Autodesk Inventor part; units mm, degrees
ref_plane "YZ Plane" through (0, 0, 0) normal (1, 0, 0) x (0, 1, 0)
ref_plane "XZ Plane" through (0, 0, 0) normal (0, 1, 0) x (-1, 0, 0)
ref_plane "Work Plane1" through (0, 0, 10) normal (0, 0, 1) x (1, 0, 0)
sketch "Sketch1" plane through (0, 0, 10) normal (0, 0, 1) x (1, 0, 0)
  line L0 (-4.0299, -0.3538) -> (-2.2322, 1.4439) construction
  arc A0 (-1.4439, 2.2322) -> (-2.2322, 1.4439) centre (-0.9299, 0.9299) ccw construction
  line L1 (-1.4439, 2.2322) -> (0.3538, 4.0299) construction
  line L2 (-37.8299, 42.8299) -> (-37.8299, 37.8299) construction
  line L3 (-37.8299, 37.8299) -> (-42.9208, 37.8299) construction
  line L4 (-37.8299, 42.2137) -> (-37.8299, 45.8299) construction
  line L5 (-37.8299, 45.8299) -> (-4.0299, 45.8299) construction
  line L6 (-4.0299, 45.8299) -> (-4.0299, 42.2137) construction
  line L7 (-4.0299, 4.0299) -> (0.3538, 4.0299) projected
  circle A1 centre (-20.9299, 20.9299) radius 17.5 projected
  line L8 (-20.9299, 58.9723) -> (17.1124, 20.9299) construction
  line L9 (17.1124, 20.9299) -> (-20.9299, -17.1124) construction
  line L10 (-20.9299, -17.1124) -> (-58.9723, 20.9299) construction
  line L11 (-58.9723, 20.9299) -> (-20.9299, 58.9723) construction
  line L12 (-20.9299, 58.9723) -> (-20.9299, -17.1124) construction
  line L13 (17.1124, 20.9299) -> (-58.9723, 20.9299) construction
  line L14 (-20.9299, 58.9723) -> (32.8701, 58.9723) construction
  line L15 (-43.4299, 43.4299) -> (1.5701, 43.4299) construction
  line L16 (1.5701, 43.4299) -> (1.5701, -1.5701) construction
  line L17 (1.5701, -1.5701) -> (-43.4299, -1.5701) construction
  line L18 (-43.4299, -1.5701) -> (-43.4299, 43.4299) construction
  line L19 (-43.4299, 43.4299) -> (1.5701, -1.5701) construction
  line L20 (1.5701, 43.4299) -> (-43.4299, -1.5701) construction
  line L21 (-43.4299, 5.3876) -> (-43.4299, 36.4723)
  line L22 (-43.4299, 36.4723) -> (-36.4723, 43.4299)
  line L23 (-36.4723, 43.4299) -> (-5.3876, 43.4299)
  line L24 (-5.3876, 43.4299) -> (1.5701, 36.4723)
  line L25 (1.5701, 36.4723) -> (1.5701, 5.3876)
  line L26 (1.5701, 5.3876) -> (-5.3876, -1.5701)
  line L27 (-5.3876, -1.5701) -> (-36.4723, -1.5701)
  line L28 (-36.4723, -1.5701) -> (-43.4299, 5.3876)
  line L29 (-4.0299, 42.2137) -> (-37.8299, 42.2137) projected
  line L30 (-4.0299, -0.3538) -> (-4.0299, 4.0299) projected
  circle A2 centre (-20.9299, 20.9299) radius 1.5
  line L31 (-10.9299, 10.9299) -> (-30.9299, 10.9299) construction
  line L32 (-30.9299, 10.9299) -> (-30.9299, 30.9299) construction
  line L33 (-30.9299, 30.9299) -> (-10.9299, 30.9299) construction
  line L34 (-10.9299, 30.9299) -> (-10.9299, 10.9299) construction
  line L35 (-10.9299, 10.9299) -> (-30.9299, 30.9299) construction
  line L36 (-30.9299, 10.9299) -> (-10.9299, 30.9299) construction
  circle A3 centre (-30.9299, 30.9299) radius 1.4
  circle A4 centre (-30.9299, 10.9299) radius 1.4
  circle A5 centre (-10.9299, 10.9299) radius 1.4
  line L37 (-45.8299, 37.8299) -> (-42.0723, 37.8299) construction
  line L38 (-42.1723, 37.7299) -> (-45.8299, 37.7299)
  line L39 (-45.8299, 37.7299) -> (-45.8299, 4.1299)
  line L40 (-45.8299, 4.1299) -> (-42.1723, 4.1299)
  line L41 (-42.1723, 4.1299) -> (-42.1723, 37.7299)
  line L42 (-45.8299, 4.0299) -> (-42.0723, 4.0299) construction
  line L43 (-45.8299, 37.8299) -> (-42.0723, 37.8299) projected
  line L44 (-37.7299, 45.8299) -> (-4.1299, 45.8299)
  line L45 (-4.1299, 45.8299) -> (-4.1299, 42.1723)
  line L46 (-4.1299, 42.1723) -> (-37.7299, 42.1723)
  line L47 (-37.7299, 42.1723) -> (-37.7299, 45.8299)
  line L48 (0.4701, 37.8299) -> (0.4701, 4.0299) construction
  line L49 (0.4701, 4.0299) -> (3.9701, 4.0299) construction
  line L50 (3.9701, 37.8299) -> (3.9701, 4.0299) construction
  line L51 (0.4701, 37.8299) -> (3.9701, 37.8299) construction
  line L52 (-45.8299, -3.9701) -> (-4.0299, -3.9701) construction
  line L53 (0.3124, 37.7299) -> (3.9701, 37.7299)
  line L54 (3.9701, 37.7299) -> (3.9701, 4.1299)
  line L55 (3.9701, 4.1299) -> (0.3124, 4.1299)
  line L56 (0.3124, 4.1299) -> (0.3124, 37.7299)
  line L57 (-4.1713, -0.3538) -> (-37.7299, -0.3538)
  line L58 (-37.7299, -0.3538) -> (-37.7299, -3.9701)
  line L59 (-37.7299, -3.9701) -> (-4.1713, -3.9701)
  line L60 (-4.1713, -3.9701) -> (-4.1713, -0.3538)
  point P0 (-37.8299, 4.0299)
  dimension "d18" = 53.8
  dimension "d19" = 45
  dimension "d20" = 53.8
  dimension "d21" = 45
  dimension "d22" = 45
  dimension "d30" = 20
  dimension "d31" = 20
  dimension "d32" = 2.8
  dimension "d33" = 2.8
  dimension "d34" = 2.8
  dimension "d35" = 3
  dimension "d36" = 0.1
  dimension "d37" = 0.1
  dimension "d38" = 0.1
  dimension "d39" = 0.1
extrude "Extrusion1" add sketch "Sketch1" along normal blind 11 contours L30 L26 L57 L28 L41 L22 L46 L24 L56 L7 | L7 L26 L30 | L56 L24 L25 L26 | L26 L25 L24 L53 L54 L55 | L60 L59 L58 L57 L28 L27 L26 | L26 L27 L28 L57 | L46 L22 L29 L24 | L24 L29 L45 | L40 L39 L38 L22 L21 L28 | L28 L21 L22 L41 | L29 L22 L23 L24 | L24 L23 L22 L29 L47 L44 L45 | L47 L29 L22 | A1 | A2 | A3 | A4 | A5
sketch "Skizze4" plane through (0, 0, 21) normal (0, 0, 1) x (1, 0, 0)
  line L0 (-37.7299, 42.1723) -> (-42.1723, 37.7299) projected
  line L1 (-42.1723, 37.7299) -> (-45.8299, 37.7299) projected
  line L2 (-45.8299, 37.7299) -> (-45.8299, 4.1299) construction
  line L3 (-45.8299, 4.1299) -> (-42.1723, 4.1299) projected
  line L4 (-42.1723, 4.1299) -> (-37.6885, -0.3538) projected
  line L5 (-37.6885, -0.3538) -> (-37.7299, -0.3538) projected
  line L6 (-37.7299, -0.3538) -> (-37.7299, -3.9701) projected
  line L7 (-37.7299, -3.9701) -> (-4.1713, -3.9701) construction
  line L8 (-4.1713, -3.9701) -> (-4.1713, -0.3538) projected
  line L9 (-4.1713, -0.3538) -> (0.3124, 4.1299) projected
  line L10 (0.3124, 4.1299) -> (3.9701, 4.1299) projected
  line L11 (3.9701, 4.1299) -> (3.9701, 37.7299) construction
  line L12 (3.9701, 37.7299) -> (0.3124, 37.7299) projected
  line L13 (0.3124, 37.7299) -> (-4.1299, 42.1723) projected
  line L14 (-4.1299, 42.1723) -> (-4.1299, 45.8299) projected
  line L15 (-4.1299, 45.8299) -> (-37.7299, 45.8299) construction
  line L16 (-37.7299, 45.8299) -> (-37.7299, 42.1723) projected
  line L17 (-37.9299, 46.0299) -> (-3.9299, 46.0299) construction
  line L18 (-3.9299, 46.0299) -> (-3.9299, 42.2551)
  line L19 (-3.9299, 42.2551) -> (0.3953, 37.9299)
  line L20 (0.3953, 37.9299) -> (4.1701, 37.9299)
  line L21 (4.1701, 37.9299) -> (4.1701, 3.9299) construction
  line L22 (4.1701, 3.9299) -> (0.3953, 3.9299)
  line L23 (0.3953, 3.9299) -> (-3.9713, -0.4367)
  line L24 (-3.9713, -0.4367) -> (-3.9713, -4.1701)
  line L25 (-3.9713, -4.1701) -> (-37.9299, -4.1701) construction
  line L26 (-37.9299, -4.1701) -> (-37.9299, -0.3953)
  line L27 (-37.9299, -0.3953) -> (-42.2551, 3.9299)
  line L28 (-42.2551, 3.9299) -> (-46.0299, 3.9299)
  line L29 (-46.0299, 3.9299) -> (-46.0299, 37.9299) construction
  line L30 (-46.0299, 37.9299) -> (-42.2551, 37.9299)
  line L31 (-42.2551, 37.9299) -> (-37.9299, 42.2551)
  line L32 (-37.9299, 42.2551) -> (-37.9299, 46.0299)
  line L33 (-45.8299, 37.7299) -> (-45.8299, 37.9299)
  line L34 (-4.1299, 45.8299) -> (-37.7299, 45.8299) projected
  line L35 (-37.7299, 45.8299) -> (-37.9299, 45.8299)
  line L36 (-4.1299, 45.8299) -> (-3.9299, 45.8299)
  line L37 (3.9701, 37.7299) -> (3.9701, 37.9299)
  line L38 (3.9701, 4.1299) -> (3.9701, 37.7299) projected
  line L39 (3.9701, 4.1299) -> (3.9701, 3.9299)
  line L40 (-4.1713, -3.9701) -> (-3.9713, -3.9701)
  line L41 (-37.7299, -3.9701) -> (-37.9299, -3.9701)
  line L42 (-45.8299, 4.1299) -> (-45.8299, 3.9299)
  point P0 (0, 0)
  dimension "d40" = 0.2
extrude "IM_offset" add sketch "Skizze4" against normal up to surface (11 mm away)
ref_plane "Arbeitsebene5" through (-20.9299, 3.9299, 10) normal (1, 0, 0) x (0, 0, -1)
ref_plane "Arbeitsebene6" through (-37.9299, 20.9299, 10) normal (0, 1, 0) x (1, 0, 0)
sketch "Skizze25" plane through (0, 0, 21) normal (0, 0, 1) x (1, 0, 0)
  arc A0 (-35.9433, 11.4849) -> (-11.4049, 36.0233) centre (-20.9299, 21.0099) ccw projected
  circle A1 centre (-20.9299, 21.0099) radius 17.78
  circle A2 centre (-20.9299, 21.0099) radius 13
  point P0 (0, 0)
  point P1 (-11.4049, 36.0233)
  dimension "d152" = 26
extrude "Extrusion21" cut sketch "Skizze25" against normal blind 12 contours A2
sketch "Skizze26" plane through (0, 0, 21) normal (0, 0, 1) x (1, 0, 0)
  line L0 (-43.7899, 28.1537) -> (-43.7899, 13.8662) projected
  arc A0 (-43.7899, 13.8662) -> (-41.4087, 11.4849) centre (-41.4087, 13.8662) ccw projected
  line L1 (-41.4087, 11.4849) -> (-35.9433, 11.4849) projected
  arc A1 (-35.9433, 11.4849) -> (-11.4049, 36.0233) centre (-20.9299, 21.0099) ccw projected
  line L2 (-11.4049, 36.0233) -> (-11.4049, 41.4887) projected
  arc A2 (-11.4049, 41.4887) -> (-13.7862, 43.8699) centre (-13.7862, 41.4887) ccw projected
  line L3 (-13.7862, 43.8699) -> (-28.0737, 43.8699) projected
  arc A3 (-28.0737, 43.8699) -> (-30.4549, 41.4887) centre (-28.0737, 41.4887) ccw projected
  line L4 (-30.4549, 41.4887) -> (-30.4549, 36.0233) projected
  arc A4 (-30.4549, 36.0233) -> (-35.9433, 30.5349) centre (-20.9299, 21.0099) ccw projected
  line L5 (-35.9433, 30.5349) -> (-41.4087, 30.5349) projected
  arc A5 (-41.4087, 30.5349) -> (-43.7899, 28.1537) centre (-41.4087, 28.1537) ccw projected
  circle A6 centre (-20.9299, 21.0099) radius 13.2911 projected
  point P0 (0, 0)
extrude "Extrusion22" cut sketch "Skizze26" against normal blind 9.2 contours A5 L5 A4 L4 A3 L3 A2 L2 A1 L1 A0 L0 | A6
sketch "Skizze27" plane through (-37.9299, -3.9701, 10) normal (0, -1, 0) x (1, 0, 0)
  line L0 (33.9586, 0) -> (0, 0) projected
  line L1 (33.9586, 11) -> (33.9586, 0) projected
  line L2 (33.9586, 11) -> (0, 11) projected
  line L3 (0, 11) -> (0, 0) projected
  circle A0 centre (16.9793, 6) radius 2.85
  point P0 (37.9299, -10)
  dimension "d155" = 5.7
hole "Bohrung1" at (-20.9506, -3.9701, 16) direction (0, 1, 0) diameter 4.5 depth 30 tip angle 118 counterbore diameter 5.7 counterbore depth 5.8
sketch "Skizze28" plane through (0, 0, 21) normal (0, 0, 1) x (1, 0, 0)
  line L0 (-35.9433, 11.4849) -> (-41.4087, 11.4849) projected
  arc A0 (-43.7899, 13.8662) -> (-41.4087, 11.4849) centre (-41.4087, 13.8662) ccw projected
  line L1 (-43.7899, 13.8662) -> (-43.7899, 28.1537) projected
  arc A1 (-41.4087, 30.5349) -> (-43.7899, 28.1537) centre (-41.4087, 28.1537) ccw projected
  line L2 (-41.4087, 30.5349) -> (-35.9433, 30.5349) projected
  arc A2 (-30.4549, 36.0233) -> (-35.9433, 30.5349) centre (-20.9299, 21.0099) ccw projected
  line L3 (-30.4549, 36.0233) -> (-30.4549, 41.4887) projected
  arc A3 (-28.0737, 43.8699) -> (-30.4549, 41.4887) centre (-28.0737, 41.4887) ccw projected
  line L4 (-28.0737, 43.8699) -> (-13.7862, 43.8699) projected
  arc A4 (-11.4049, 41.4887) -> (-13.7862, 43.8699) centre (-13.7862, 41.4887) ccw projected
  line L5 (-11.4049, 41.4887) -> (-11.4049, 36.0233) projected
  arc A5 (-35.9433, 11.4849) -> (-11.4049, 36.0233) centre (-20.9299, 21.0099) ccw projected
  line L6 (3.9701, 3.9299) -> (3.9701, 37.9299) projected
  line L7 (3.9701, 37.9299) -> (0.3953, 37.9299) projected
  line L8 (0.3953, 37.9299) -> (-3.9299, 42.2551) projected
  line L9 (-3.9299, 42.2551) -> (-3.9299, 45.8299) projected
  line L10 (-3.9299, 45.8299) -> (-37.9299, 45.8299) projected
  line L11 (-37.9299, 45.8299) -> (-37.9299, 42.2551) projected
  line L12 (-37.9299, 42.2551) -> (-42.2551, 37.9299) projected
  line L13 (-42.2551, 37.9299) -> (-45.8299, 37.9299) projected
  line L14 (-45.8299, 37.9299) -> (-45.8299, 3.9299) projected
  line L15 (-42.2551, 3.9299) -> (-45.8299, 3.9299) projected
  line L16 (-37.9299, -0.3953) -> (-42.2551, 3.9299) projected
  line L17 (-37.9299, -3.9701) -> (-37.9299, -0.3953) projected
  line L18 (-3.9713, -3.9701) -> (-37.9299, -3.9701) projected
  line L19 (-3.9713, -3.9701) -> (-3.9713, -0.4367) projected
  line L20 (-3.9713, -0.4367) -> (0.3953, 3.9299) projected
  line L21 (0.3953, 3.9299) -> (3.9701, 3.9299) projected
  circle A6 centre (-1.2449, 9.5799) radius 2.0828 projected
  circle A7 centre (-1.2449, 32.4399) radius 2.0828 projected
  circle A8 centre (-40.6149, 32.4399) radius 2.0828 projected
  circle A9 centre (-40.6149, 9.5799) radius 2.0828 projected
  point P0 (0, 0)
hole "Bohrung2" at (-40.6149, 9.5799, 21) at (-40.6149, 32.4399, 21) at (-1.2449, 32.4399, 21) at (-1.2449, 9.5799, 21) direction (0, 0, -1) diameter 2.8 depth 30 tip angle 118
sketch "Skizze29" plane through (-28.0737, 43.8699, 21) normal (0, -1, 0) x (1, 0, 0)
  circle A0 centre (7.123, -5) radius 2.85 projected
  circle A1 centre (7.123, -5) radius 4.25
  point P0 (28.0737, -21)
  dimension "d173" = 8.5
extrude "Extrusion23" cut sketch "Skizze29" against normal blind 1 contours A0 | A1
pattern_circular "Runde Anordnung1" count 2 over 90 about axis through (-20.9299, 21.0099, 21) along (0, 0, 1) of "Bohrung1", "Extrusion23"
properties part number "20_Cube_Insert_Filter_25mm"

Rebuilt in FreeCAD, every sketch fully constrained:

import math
import FreeCAD as App
import Part
import Sketcher


def add_polygon(sketch, points):
    """Adds a closed chain of lines whose ends are joined by coincident constraints."""
    first, n = sketch.GeometryCount, len(points)
    for a, b in zip(points, points[1:] + points[:1]):
        sketch.addGeometry(Part.LineSegment(App.Vector(*a, 0), App.Vector(*b, 0)), False)
    for i in range(n):
        sketch.addConstraint(Sketcher.Constraint("Coincident", first + i, 2, first + (i + 1) % n, 1))

doc = App.newDocument("Part")
body = doc.addObject("PartDesign::Body", "Body")

# Sketch on XY plane
sketch1 = doc.addObject("Sketcher::SketchObject", "Sketch")
body.addObject(sketch1)
sketch1.AttachmentSupport = (doc.XY_Plane, [""])
sketch1.MapMode = "FlatFace"
sketch1.AttachmentOffset = App.Placement(App.Vector(0, 0, 10), App.Rotation())
add_polygon(sketch1, [(-4.1713, -0.3538), (0.3124, 4.1299), (3.9701, 4.1299), (3.9701, 37.7299), (0.312441, 37.729941), (-4.1299, 42.1723), (-4.1299, 45.8299), (-37.7299, 45.8299), (-37.7299, 42.1723), (-42.1723, 37.7299), (-45.8299, 37.7299), (-45.8299, 4.1299), (-42.172259, 4.129941), (-37.688583, -0.3538), (-37.7299, -0.3538), (-37.7299, -3.9701), (-4.1713, -3.9701)])  # lines 0-16
sketch1.addConstraint(Sketcher.Constraint("Horizontal", 1))
sketch1.addConstraint(Sketcher.Constraint("Vertical", 2))
sketch1.addConstraint(Sketcher.Constraint("Horizontal", 3))
sketch1.addConstraint(Sketcher.Constraint("Vertical", 5))
sketch1.addConstraint(Sketcher.Constraint("Horizontal", 6))
sketch1.addConstraint(Sketcher.Constraint("Vertical", 7))
sketch1.addConstraint(Sketcher.Constraint("Horizontal", 9))
sketch1.addConstraint(Sketcher.Constraint("Vertical", 10))
sketch1.addConstraint(Sketcher.Constraint("Horizontal", 11))
sketch1.addConstraint(Sketcher.Constraint("Horizontal", 13))
sketch1.addConstraint(Sketcher.Constraint("Vertical", 14))
sketch1.addConstraint(Sketcher.Constraint("Horizontal", 15))
sketch1.addConstraint(Sketcher.Constraint("Vertical", 16))
sketch1.addConstraint(Sketcher.Constraint("Perpendicular", 0, 4))
sketch1.addConstraint(Sketcher.Constraint("Perpendicular", 4, 8))
sketch1.addConstraint(Sketcher.Constraint("Perpendicular", 8, 12))
sketch1.addConstraint(Sketcher.Constraint("Horizontal", 4, 2, 7, 2))
sketch1.addConstraint(Sketcher.Constraint("Horizontal", 3, 2, 8, 2))
sketch1.addConstraint(Sketcher.Constraint("Horizontal", 1, 2, 10, 2))
sketch1.addConstraint(Sketcher.Constraint("Horizontal", 13, 2, 16, 2))
sketch1.addConstraint(Sketcher.Constraint("Vertical", 0, 2, 3, 2))
sketch1.addConstraint(Sketcher.Constraint("Vertical", 8, 2, 11, 2))
sketch1.addConstraint(Sketcher.Constraint("Vertical", 7, 2, 13, 2))
sketch1.addConstraint(Sketcher.Constraint("Equal", 3, 9))
sketch1.addConstraint(Sketcher.Constraint("Equal", 6, 2))
sketch1.addConstraint(Sketcher.Constraint("Equal", 11, 5))
sketch1.addConstraint(Sketcher.Constraint("Equal", 4, 8))
sketch1.addConstraint(Sketcher.Constraint("DistanceX", 6, 2, 6, 1, 33.6))
sketch1.addConstraint(Sketcher.Constraint("DistanceX", 4, 2, 2, 2, 8.1))
sketch1.addConstraint(Sketcher.Constraint("DistanceY", 14, 2, 11, 2, 8.1))
sketch1.addConstraint(Sketcher.Constraint("DistanceY", -1, 1, 0, 2, 4.13))
sketch1.addConstraint(Sketcher.Constraint("DistanceX", -1, 1, 1, 2, 3.97))
sketch1.addConstraint(Sketcher.Constraint("Distance", 0, 6.341))
sketch1.addConstraint(Sketcher.Constraint("DistanceX", 1, 1, 1, 2, 3.6577))
pad1 = doc.addObject("PartDesign::Pad", "Pad")
body.addObject(pad1)
pad1.Profile = sketch1
pad1.Length = 11

# Sketch on XY plane
sketch2 = doc.addObject("Sketcher::SketchObject", "Sketch001")
body.addObject(sketch2)
sketch2.AttachmentSupport = (doc.XY_Plane, [""])
sketch2.MapMode = "FlatFace"
sketch2.AttachmentOffset = App.Placement(App.Vector(0, 0, 21), App.Rotation())
add_polygon(sketch2, [(3.9701, 3.9299), (3.9701, 4.1299), (0.3124, 4.1299), (-4.1713, -0.3538), (-4.1713, -3.9701), (-3.9713, -3.9701), (-3.9713, -0.4367), (0.3953, 3.9299)])  # lines 0-7
add_polygon(sketch2, [(-3.9299, 45.8299), (-4.1299, 45.8299), (-4.1299, 42.1723), (0.3124, 37.7299), (3.9701, 37.7299), (3.9701, 37.9299), (0.3953, 37.9299), (-3.9299, 42.2551)])  # lines 8-15
add_polygon(sketch2, [(-42.1723, 37.7299), (-37.7299, 42.1723), (-37.7299, 45.8299), (-37.9299, 45.8299), (-37.9299, 42.2551), (-42.2551, 37.9299), (-45.8299, 37.9299), (-45.8299, 37.7299)])  # lines 16-23
add_polygon(sketch2, [(-42.1723, 4.1299), (-45.8299, 4.1299), (-45.8299, 3.9299), (-42.2551, 3.9299), (-37.9299, -0.3953), (-37.9299, -3.9701), (-37.7299, -3.9701), (-37.7299, -0.3538), (-37.6885, -0.3538)])  # lines 24-32
sketch2.addConstraint(Sketcher.Constraint("Vertical", 0))
sketch2.addConstraint(Sketcher.Constraint("Horizontal", 1))
sketch2.addConstraint(Sketcher.Constraint("Vertical", 3))
sketch2.addConstraint(Sketcher.Constraint("Horizontal", 4))
sketch2.addConstraint(Sketcher.Constraint("Vertical", 5))
sketch2.addConstraint(Sketcher.Constraint("Horizontal", 7))
sketch2.addConstraint(Sketcher.Constraint("Horizontal", 8))
sketch2.addConstraint(Sketcher.Constraint("Vertical", 9))
sketch2.addConstraint(Sketcher.Constraint("Horizontal", 11))
sketch2.addConstraint(Sketcher.Constraint("Vertical", 12))
sketch2.addConstraint(Sketcher.Constraint("Horizontal", 13))
sketch2.addConstraint(Sketcher.Constraint("Vertical", 15))
sketch2.addConstraint(Sketcher.Constraint("Vertical", 17))
sketch2.addConstraint(Sketcher.Constraint("Horizontal", 18))
sketch2.addConstraint(Sketcher.Constraint("Vertical", 19))
sketch2.addConstraint(Sketcher.Constraint("Horizontal", 21))
sketch2.addConstraint(Sketcher.Constraint("Vertical", 22))
sketch2.addConstraint(Sketcher.Constraint("Horizontal", 23))
sketch2.addConstraint(Sketcher.Constraint("Horizontal", 24))
sketch2.addConstraint(Sketcher.Constraint("Vertical", 25))
sketch2.addConstraint(Sketcher.Constraint("Horizontal", 26))
sketch2.addConstraint(Sketcher.Constraint("Vertical", 28))
sketch2.addConstraint(Sketcher.Constraint("Horizontal", 29))
sketch2.addConstraint(Sketcher.Constraint("Vertical", 30))
sketch2.addConstraint(Sketcher.Constraint("Horizontal", 31))
sketch2.addConstraint(Sketcher.Constraint("Parallel", 2, 6))
sketch2.addConstraint(Sketcher.Constraint("Perpendicular", 6, 10))
sketch2.addConstraint(Sketcher.Constraint("Parallel", 10, 14))
sketch2.addConstraint(Sketcher.Constraint("Perpendicular", 14, 16))
sketch2.addConstraint(Sketcher.Constraint("Parallel", 16, 20))
sketch2.addConstraint(Sketcher.Constraint("Perpendicular", 20, 27))
sketch2.addConstraint(Sketcher.Constraint("Parallel", 27, 32))
sketch2.addConstraint(Sketcher.Constraint("Horizontal", 9, 2, 16, 2))
sketch2.addConstraint(Sketcher.Constraint("Horizontal", 15, 2, 17, 2))
sketch2.addConstraint(Sketcher.Constraint("Horizontal", 14, 2, 19, 2))
sketch2.addConstraint(Sketcher.Constraint("Horizontal", 13, 2, 20, 2))
sketch2.addConstraint(Sketcher.Constraint("Horizontal", 11, 2, 22, 2))
sketch2.addConstraint(Sketcher.Constraint("Horizontal", 1, 2, 24, 2))
sketch2.addConstraint(Sketcher.Constraint("Horizontal", 7, 2, 25, 2))
sketch2.addConstraint(Sketcher.Constraint("Horizontal", 4, 2, 28, 2))
sketch2.addConstraint(Sketcher.Constraint("Horizontal", 2, 2, 30, 2))
sketch2.addConstraint(Sketcher.Constraint("Vertical", 1, 2, 10, 2))
sketch2.addConstraint(Sketcher.Constraint("Vertical", 7, 2, 11, 2))
sketch2.addConstraint(Sketcher.Constraint("Vertical", 6, 2, 13, 2))
sketch2.addConstraint(Sketcher.Constraint("Vertical", 22, 2, 24, 2))
sketch2.addConstraint(Sketcher.Constraint("Vertical", 20, 2, 26, 2))
sketch2.addConstraint(Sketcher.Constraint("Vertical", 19, 2, 27, 2))
sketch2.addConstraint(Sketcher.Constraint("Vertical", 17, 2, 29, 2))
sketch2.addConstraint(Sketcher.Constraint("Vertical", 23, 2, 32, 2))
sketch2.addConstraint(Sketcher.Constraint("Equal", 4, 8))
sketch2.addConstraint(Sketcher.Constraint("Equal", 8, 18))
sketch2.addConstraint(Sketcher.Constraint("Equal", 13, 21))
sketch2.addConstraint(Sketcher.Constraint("Equal", 11, 23))
sketch2.addConstraint(Sketcher.Constraint("Equal", 29, 0))
sketch2.addConstraint(Sketcher.Constraint("Equal", 24, 9))
sketch2.addConstraint(Sketcher.Constraint("Equal", 0, 12))
sketch2.addConstraint(Sketcher.Constraint("Equal", 19, 28))
sketch2.addConstraint(Sketcher.Constraint("DistanceX", 4, 1, 4, 2, 0.2))
sketch2.addConstraint(Sketcher.Constraint("DistanceX", 18, 2, 15, 2, 34.0))
sketch2.addConstraint(Sketcher.Constraint("DistanceY", 25, 2, 21, 2, 34.0))
sketch2.addConstraint(Sketcher.Constraint("DistanceY", 3, 2, 1, 2, 8.1))
sketch2.addConstraint(Sketcher.Constraint("DistanceX", -1, 1, 0, 2, 3.97))
sketch2.addConstraint(Sketcher.Constraint("DistanceY", -1, 1, 0, 2, 4.13))
sketch2.addConstraint(Sketcher.Constraint("Distance", 2, 6.341))
sketch2.addConstraint(Sketcher.Constraint("DistanceX", 1, 2, 1, 1, 3.6577))
sketch2.addConstraint(Sketcher.Constraint("DistanceX", 7, 1, 7, 2, 3.5748))
pad2 = doc.addObject("PartDesign::Pad", "Pad001")
body.addObject(pad2)
pad2.Profile = sketch2
pad2.Length = 11
pad2.Reversed = True

# Sketch on XY plane
sketch3 = doc.addObject("Sketcher::SketchObject", "Sketch002")
body.addObject(sketch3)
sketch3.AttachmentSupport = (doc.XY_Plane, [""])
sketch3.MapMode = "FlatFace"
sketch3.AttachmentOffset = App.Placement(App.Vector(0, 0, 21), App.Rotation())
sketch3.addGeometry(Part.Circle(App.Vector(-20.9299, 21.0099, 0), App.Vector(0, 0, 1), 13), False)
sketch3.addConstraint(Sketcher.Constraint("Diameter", 0, 26.0))
sketch3.addConstraint(Sketcher.Constraint("DistanceX", 0, 3, -1, 1, 20.93))
sketch3.addConstraint(Sketcher.Constraint("DistanceY", -1, 1, 0, 3, 21.01))
pocket1 = doc.addObject("PartDesign::Pocket", "Pocket")
body.addObject(pocket1)
pocket1.Profile = sketch3
pocket1.Length = 12

# Sketch on XY plane
sketch4 = doc.addObject("Sketcher::SketchObject", "Sketch003")
body.addObject(sketch4)
sketch4.AttachmentSupport = (doc.XY_Plane, [""])
sketch4.MapMode = "FlatFace"
sketch4.AttachmentOffset = App.Placement(App.Vector(0, 0, 21), App.Rotation())
sketch4.addGeometry(Part.ArcOfCircle(Part.Circle(App.Vector(-41.4087, 28.1537, 0), App.Vector(0, 0, 1), 2.3812), math.radians(90), math.radians(180)), False)
sketch4.addGeometry(Part.LineSegment(App.Vector(-43.7899, 28.1537, 0), App.Vector(-43.7899, 13.8662, 0)), False)
sketch4.addGeometry(Part.ArcOfCircle(Part.Circle(App.Vector(-41.4087, 13.8662, 0), App.Vector(0, 0, 1), 2.3812), math.radians(180), math.radians(270)), False)
sketch4.addGeometry(Part.LineSegment(App.Vector(-41.4087, 11.4849, 0), App.Vector(-35.9433, 11.4849, 0)), False)
sketch4.addGeometry(Part.ArcOfCircle(Part.Circle(App.Vector(-20.9299, 21.0099, 0), App.Vector(0, 0, 1), 17.779983), math.radians(-147.6076), math.radians(57.6076)), False)
sketch4.addGeometry(Part.LineSegment(App.Vector(-11.4049, 36.0233, 0), App.Vector(-11.4049, 41.4887, 0)), False)
sketch4.addGeometry(Part.ArcOfCircle(Part.Circle(App.Vector(-13.7862, 41.4887, 0), App.Vector(0, 0, 1), 2.3813), math.radians(0), math.radians(90)), False)
sketch4.addGeometry(Part.LineSegment(App.Vector(-13.7862, 43.8699, 0), App.Vector(-28.0737, 43.8699, 0)), False)
sketch4.addGeometry(Part.ArcOfCircle(Part.Circle(App.Vector(-28.0737, 41.4887, 0), App.Vector(0, 0, 1), 2.3812), math.radians(90), math.radians(180)), False)
sketch4.addGeometry(Part.LineSegment(App.Vector(-30.4549, 41.4887, 0), App.Vector(-30.4549, 36.0233, 0)), False)
sketch4.addGeometry(Part.ArcOfCircle(Part.Circle(App.Vector(-20.9299, 21.0099, 0), App.Vector(0, 0, 1), 17.779983), math.radians(122.3924), math.radians(147.6076)), False)
sketch4.addGeometry(Part.LineSegment(App.Vector(-35.9433, 30.5349, 0), App.Vector(-41.4087, 30.5349, 0)), False)
sketch4.addConstraint(Sketcher.Constraint("Tangent", 0, 2, 1, 1))
sketch4.addConstraint(Sketcher.Constraint("Tangent", 1, 2, 2, 1))
sketch4.addConstraint(Sketcher.Constraint("Tangent", 2, 2, 3, 1))
sketch4.addConstraint(Sketcher.Constraint("Coincident", 3, 2, 4, 1))
sketch4.addConstraint(Sketcher.Constraint("Coincident", 4, 2, 5, 1))
sketch4.addConstraint(Sketcher.Constraint("Tangent", 5, 2, 6, 1))
sketch4.addConstraint(Sketcher.Constraint("Tangent", 6, 2, 7, 1))
sketch4.addConstraint(Sketcher.Constraint("Tangent", 7, 2, 8, 1))
sketch4.addConstraint(Sketcher.Constraint("Tangent", 8, 2, 9, 1))
sketch4.addConstraint(Sketcher.Constraint("Coincident", 9, 2, 10, 1))
sketch4.addConstraint(Sketcher.Constraint("Coincident", 10, 2, 11, 1))
sketch4.addConstraint(Sketcher.Constraint("Tangent", 11, 2, 0, 1))
sketch4.addConstraint(Sketcher.Constraint("Vertical", 1))
sketch4.addConstraint(Sketcher.Constraint("Horizontal", 3))
sketch4.addConstraint(Sketcher.Constraint("Vertical", 5))
sketch4.addConstraint(Sketcher.Constraint("Horizontal", 7))
sketch4.addConstraint(Sketcher.Constraint("Vertical", 9))
sketch4.addConstraint(Sketcher.Constraint("Horizontal", 11))
sketch4.addConstraint(Sketcher.Constraint("Coincident", 10, 3, 4, 3))
sketch4.addConstraint(Sketcher.Constraint("Equal", 0, 2))
sketch4.addConstraint(Sketcher.Constraint("Equal", 2, 6))
sketch4.addConstraint(Sketcher.Constraint("Equal", 6, 8))
sketch4.addConstraint(Sketcher.Constraint("Equal", 4, 10))
sketch4.addConstraint(Sketcher.Constraint("Horizontal", 4, 2, 9, 2))
sketch4.addConstraint(Sketcher.Constraint("Vertical", 3, 2, 10, 2))
sketch4.addConstraint(Sketcher.Constraint("Equal", 7, 1))
sketch4.addConstraint(Sketcher.Constraint("Equal", 11, 5))
sketch4.addConstraint(Sketcher.Constraint("Radius", 4, 17.78))
sketch4.addConstraint(Sketcher.Constraint("Radius", 0, 2.3812))
sketch4.addConstraint(Sketcher.Constraint("DistanceX", 4, 3, -1, 1, 20.93))
sketch4.addConstraint(Sketcher.Constraint("DistanceY", -1, 1, 4, 3, 21.01))
sketch4.addConstraint(Sketcher.Constraint("DistanceX", 0, 2, -1, 1, 43.79))
sketch4.addConstraint(Sketcher.Constraint("DistanceX", 3, 1, 3, 2, 5.4654))
pocket2 = doc.addObject("PartDesign::Pocket", "Pocket001")
body.addObject(pocket2)
pocket2.Profile = sketch4
pocket2.Length = 9.2

# Sketch on XZ plane
sketch5 = doc.addObject("Sketcher::SketchObject", "Sketch004")
body.addObject(sketch5)
sketch5.AttachmentSupport = (doc.XZ_Plane, [""])
sketch5.MapMode = "FlatFace"
sketch5.AttachmentOffset = App.Placement(App.Vector(0, 0, 3.9701), App.Rotation())
sketch5.addGeometry(Part.Circle(App.Vector(-20.9506, 16, 0), App.Vector(0, 0, 1), 2.25), False)
sketch5.addConstraint(Sketcher.Constraint("Diameter", 0, 4.5))
sketch5.addConstraint(Sketcher.Constraint("DistanceY", -1, 1, 0, 3, 16.0))
sketch5.addConstraint(Sketcher.Constraint("DistanceX", 0, 3, -1, 1, 20.9506))
doc.recompute()
hole = doc.addObject("PartDesign::Hole", "Hole")
body.addObject(hole)
hole.Profile = sketch5
hole.ThreadType = "None"
hole.Diameter = 4.5
hole.DepthType = "Dimension"
hole.Depth = 30
hole.DrillPoint = "Angled"
hole.DrillPointAngle = 118
hole.HoleCutType = "Counterbore"
hole.HoleCutDiameter = 5.7
hole.HoleCutDepth = 5.8

# Sketch on XY plane
sketch6 = doc.addObject("Sketcher::SketchObject", "Sketch005")
body.addObject(sketch6)
sketch6.AttachmentSupport = (doc.XY_Plane, [""])
sketch6.MapMode = "FlatFace"
sketch6.AttachmentOffset = App.Placement(App.Vector(0, 0, 21), App.Rotation())
sketch6.addGeometry(Part.Circle(App.Vector(-40.6149, 9.5799, 0), App.Vector(0, 0, 1), 1.4), False)
sketch6.addGeometry(Part.Circle(App.Vector(-40.6149, 32.4399, 0), App.Vector(0, 0, 1), 1.4), False)
sketch6.addGeometry(Part.Circle(App.Vector(-1.2449, 32.4399, 0), App.Vector(0, 0, 1), 1.4), False)
sketch6.addGeometry(Part.Circle(App.Vector(-1.2449, 9.5799, 0), App.Vector(0, 0, 1), 1.4), False)
sketch6.addConstraint(Sketcher.Constraint("Equal", 0, 1))
sketch6.addConstraint(Sketcher.Constraint("Equal", 1, 2))
sketch6.addConstraint(Sketcher.Constraint("Equal", 2, 3))
sketch6.addConstraint(Sketcher.Constraint("Horizontal", 1, 3, 2, 3))
sketch6.addConstraint(Sketcher.Constraint("Horizontal", 0, 3, 3, 3))
sketch6.addConstraint(Sketcher.Constraint("Vertical", 0, 3, 1, 3))
sketch6.addConstraint(Sketcher.Constraint("Vertical", 2, 3, 3, 3))
sketch6.addConstraint(Sketcher.Constraint("Diameter", 0, 2.8))
sketch6.addConstraint(Sketcher.Constraint("DistanceY", -1, 1, 0, 3, 9.58))
sketch6.addConstraint(Sketcher.Constraint("DistanceY", -1, 1, 1, 3, 32.44))
sketch6.addConstraint(Sketcher.Constraint("DistanceX", 1, 3, 2, 3, 39.37))
sketch6.addConstraint(Sketcher.Constraint("DistanceX", 0, 3, -1, 1, 40.615))
doc.recompute()
hole2 = doc.addObject("PartDesign::Hole", "Hole001")
body.addObject(hole2)
hole2.Profile = sketch6
hole2.ThreadType = "None"
hole2.Diameter = 2.8
hole2.DepthType = "Dimension"
hole2.Depth = 30
hole2.DrillPoint = "Angled"
hole2.DrillPointAngle = 118

# Sketch on XZ plane
sketch7 = doc.addObject("Sketcher::SketchObject", "Sketch006")
body.addObject(sketch7)
sketch7.AttachmentSupport = (doc.XZ_Plane, [""])
sketch7.MapMode = "FlatFace"
sketch7.AttachmentOffset = App.Placement(App.Vector(0, 0, -43.8699), App.Rotation())
sketch7.addGeometry(Part.Circle(App.Vector(-20.9507, 16, 0), App.Vector(0, 0, 1), 4.25), False)
sketch7.addConstraint(Sketcher.Constraint("Diameter", 0, 8.5))
sketch7.addConstraint(Sketcher.Constraint("DistanceY", -1, 1, 0, 3, 16.0))
sketch7.addConstraint(Sketcher.Constraint("DistanceX", 0, 3, -1, 1, 20.9507))
pocket3 = doc.addObject("PartDesign::Pocket", "Pocket002")
body.addObject(pocket3)
pocket3.Profile = sketch7
pocket3.Length = 1
doc.recompute()

datumline = doc.addObject("PartDesign::Line", "DatumLine")
body.addObject(datumline)
datumline.Placement = App.Placement(App.Vector(-20.9299, 21.0099, 0), App.Rotation(App.Vector(0, 0, 1), App.Vector(0, 0, 1)))
polarpattern = doc.addObject("PartDesign::PolarPattern", "PolarPattern")
body.addObject(polarpattern)
polarpattern.Originals = [hole, pocket3]
polarpattern.Axis = (datumline, [""])
polarpattern.Angle = 90
polarpattern.Occurrences = 2
body.Tip = polarpattern

doc.recompute()
